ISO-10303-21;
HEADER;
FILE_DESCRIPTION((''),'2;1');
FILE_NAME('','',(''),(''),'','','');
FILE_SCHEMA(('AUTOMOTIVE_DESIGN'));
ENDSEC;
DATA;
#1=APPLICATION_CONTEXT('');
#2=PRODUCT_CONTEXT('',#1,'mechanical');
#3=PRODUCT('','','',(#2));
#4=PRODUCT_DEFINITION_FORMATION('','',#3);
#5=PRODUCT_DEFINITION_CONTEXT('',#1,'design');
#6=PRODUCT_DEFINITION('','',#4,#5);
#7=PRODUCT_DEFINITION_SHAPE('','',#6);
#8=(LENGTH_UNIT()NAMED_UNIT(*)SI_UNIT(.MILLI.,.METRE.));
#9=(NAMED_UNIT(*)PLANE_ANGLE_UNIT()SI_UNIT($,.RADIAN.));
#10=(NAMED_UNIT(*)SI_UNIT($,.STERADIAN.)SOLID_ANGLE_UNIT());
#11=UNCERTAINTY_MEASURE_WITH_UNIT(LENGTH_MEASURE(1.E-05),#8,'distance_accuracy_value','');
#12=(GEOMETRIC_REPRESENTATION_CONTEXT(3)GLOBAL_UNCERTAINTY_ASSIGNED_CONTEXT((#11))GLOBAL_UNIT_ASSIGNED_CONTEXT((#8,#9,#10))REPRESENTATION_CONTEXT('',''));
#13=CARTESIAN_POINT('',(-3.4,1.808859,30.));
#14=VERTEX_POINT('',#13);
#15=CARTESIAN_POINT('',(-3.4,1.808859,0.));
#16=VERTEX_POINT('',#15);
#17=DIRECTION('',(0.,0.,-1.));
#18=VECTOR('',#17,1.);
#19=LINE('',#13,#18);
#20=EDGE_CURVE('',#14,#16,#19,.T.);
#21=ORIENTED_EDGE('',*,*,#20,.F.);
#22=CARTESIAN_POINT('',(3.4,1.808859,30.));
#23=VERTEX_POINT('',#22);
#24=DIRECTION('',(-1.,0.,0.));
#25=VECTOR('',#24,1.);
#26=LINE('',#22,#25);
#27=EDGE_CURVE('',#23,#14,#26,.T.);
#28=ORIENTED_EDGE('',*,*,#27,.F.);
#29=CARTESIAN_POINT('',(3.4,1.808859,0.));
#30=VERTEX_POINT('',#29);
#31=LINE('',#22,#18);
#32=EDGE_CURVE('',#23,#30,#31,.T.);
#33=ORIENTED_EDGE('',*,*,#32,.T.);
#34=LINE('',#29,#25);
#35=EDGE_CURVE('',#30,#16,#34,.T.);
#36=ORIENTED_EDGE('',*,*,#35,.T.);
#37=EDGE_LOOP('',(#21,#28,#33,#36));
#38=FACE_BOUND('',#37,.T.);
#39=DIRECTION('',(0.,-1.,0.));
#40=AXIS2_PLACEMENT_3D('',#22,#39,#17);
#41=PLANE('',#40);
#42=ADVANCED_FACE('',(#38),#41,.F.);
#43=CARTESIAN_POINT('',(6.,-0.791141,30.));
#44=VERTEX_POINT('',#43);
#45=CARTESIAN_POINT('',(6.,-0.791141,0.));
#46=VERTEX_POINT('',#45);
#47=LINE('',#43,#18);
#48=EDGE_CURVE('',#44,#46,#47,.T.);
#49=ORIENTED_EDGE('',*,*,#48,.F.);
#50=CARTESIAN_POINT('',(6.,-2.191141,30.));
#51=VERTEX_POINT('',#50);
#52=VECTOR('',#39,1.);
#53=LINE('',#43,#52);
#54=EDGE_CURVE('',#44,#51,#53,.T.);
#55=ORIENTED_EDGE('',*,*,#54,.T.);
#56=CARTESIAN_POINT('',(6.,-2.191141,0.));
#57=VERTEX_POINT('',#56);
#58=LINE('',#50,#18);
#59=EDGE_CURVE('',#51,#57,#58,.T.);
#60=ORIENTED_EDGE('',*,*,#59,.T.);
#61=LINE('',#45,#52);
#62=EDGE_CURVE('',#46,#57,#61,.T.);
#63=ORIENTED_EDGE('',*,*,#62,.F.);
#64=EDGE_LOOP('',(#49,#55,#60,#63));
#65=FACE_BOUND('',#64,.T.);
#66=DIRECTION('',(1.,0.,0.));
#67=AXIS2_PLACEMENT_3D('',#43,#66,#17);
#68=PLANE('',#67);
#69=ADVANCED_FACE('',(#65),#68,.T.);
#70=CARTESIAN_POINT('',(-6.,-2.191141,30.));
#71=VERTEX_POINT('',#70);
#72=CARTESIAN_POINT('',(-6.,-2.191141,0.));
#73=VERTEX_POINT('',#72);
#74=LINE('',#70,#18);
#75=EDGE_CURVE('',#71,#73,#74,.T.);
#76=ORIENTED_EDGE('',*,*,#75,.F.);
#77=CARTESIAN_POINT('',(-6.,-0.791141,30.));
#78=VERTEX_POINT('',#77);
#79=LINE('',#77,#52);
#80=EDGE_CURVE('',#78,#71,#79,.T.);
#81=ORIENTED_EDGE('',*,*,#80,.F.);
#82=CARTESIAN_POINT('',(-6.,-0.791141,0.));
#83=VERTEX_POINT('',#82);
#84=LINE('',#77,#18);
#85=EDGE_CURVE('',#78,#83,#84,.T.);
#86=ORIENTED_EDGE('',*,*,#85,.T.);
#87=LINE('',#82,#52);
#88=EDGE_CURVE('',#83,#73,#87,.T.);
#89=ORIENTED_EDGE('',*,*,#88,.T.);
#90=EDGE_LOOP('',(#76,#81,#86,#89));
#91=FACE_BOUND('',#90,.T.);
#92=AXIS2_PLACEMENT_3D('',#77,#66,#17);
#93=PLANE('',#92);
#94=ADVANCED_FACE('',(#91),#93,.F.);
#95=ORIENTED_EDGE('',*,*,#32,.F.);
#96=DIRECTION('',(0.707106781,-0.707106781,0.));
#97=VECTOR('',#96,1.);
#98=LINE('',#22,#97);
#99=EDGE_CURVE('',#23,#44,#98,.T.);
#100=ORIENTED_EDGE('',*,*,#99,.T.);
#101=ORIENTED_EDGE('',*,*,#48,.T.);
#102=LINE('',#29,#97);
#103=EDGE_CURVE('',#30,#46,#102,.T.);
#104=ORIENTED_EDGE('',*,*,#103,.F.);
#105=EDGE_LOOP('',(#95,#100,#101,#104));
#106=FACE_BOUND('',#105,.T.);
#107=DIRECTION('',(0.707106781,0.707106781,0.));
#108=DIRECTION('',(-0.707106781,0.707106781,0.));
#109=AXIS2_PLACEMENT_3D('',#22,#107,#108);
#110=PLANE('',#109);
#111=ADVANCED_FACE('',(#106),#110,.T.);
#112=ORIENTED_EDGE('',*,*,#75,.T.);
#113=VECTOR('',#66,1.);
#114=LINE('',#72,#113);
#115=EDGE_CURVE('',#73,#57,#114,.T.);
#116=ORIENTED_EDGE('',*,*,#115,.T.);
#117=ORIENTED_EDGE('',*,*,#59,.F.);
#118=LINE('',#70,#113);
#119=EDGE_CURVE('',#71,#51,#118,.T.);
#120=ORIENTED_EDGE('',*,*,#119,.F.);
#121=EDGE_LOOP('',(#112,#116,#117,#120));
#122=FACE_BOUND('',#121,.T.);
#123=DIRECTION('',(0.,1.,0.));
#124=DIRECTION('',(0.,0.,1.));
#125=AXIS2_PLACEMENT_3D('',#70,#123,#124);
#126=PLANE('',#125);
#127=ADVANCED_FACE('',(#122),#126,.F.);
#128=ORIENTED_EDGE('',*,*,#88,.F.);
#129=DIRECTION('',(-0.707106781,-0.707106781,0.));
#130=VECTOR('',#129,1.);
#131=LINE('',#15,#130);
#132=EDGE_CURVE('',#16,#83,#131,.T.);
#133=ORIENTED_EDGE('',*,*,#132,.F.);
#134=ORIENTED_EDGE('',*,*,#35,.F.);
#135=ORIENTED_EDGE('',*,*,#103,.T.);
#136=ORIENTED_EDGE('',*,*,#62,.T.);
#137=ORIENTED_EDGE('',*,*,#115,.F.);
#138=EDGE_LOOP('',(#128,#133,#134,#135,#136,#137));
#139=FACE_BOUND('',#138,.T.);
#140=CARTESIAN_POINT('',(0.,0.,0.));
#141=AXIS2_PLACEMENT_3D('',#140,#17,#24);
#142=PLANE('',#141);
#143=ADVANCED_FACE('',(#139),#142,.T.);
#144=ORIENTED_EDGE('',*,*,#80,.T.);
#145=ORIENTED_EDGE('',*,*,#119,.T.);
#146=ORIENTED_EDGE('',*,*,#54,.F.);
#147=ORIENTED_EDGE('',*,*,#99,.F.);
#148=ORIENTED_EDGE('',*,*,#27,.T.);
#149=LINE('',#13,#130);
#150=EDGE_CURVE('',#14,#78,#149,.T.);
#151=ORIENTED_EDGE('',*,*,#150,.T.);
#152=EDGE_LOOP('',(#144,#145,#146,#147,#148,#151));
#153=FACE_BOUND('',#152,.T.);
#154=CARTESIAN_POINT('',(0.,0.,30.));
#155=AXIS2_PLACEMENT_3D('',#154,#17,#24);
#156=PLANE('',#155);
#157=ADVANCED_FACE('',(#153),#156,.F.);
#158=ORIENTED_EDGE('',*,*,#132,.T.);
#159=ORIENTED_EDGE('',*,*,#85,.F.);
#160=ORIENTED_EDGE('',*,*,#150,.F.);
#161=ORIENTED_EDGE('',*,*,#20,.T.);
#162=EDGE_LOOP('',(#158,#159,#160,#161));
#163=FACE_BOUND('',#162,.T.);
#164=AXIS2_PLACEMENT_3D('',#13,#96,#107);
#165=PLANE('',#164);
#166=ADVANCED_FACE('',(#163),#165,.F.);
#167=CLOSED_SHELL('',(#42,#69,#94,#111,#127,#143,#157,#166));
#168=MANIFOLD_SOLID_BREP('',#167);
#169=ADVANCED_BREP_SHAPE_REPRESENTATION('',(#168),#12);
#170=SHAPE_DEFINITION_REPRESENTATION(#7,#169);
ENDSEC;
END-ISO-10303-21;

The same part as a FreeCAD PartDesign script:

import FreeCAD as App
import Part
import Sketcher

V = App.Vector
Q = App.Units.Quantity


def add_polygon(sketch, points):
    """Adds a closed chain of lines whose ends are joined by coincident constraints."""
    first, n = sketch.GeometryCount, len(points)
    for a, b in zip(points, points[1:] + points[:1]):
        sketch.addGeometry(Part.LineSegment(App.Vector(*a, 0), App.Vector(*b, 0)), False)
    for i in range(n):
        sketch.addConstraint(Sketcher.Constraint("Coincident", first + i, 2, first + (i + 1) % n, 1))

doc = App.newDocument("Part")
body = doc.addObject("PartDesign::Body", "Body")

# Sketch on XY plane
sketch1 = body.newObject("Sketcher::SketchObject", "Sketch")
sketch1.AttachmentSupport = (doc.getObject("XY_Plane"), [""])
sketch1.MapMode = "FlatFace"
add_polygon(sketch1, [(3.4, 1.8), (-3.4, 1.8), (-6, -0.8), (-6, -2.2), (6, -2.2), (6, -0.8)])  # lines 0-5
sketch1.addConstraint(Sketcher.Constraint("Horizontal", 0))
sketch1.addConstraint(Sketcher.Constraint("Vertical", 2))
sketch1.addConstraint(Sketcher.Constraint("Horizontal", 3))
sketch1.addConstraint(Sketcher.Constraint("Vertical", 4))
sketch1.addConstraint(Sketcher.Constraint("Symmetric", 1, 2, 4, 2, -2))
sketch1.addConstraint(Sketcher.Constraint("Perpendicular", 1, 5))
sketch1.addConstraint(Sketcher.Constraint("Equal", 1, 5))
sketch1.addConstraint(Sketcher.Constraint("DistanceX", 3, 1, 3, 2, Q("12 mm")))
sketch1.addConstraint(Sketcher.Constraint("DistanceX", 0, 2, 0, 1, Q("6.8 mm")))
sketch1.addConstraint(Sketcher.Constraint("DistanceY", 2, 2, 2, 1, Q("1.4 mm")))
sketch1.addConstraint(Sketcher.Constraint("DistanceY", -1, 1, 0, 2, Q("1.808859 mm")))
pad1 = body.newObject("PartDesign::Pad", "Pad")
pad1.Profile = sketch1
pad1.Length = 30

doc.recompute()
